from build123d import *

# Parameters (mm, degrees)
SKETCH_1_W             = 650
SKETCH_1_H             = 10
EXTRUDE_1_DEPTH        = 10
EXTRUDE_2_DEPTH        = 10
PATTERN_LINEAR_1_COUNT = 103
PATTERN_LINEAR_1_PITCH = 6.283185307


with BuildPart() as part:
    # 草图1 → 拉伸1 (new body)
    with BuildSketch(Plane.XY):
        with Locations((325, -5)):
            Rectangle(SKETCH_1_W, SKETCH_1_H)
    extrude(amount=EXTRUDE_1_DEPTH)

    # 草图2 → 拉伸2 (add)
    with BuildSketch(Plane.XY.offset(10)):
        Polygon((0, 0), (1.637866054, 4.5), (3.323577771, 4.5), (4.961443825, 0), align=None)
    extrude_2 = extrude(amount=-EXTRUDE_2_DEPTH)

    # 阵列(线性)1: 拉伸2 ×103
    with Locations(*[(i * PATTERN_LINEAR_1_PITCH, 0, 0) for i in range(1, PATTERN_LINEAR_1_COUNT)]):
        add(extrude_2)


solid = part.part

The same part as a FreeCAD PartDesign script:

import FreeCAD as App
import Part
import Sketcher

V = App.Vector
Q = App.Units.Quantity

doc = App.newDocument("Part")
params = doc.addObject("Spreadsheet::Sheet", "Params")
for row, (alias, value) in enumerate([
    ("sketch1_width", "650 mm"),
    ("sketch1_height", "10 mm"),
    ("pad1_length", "10 mm"),
    ("pad2_length", "10 mm"),
    ("linearpattern_pitch", "6.283185 mm"),
], start=1):
    params.set(f"A{row}", alias)
    params.set(f"B{row}", "=" + value)
    params.setAlias(f"B{row}", alias)

body = doc.addObject("PartDesign::Body", "Body")

# Sketch on XY plane
sketch1 = body.newObject("Sketcher::SketchObject", "Sketch")
sketch1.AttachmentSupport = (doc.getObject("XY_Plane"), [""])
sketch1.MapMode = "FlatFace"
sketch1.addGeometry([
    Part.LineSegment(V(0, 0, 0), V(0, -10, 0)),
    Part.LineSegment(V(0, -10, 0), V(650, -10, 0)),
    Part.LineSegment(V(650, -10, 0), V(650, 0, 0)),
    Part.LineSegment(V(650, 0, 0), V(0, 0, 0)),
], False)
sketch1.addConstraint([
    Sketcher.Constraint("Coincident", 0, 2, 1, 1),
    Sketcher.Constraint("Coincident", 1, 2, 2, 1),
    Sketcher.Constraint("Coincident", 2, 2, 3, 1),
    Sketcher.Constraint("Coincident", 3, 2, 0, 1),
    Sketcher.Constraint("Vertical", 0),
    Sketcher.Constraint("Horizontal", 1),
    Sketcher.Constraint("Vertical", 2),
    Sketcher.Constraint("Horizontal", 3),
    Sketcher.Constraint("Coincident", 3, 2, -1, 1),
    Sketcher.Constraint("DistanceX", 1, 1, 1, 2, Q("650 mm")),
    Sketcher.Constraint("DistanceY", 0, 2, 0, 1, Q("10 mm")),
])
sketch1.setExpression("Constraints[9]", "Params.sketch1_width")
sketch1.setExpression("Constraints[10]", "Params.sketch1_height")
pad1 = body.newObject("PartDesign::Pad", "Pad")
pad1.Profile = sketch1
pad1.setExpression("Length", "Params.pad1_length")

# Sketch on XY plane
sketch2 = body.newObject("Sketcher::SketchObject", "Sketch001")
sketch2.AttachmentSupport = (doc.getObject("XY_Plane"), [""])
sketch2.MapMode = "FlatFace"
sketch2.AttachmentOffset = App.Placement(V(0, 0, 10), App.Rotation())
sketch2.addGeometry([
    Part.LineSegment(V(1.6, 4.5, 0), V(0, 0, 0)),
    Part.LineSegment(V(0, 0, 0), V(5, 0, 0)),
    Part.LineSegment(V(5, 0, 0), V(3.3, 4.5, 0)),
    Part.LineSegment(V(3.3, 4.5, 0), V(1.6, 4.5, 0)),
], False)
sketch2.addConstraint([
    Sketcher.Constraint("Coincident", 0, 2, 1, 1),
    Sketcher.Constraint("Coincident", 1, 2, 2, 1),
    Sketcher.Constraint("Coincident", 2, 2, 3, 1),
    Sketcher.Constraint("Coincident", 3, 2, 0, 1),
    Sketcher.Constraint("Horizontal", 1),
    Sketcher.Constraint("Horizontal", 3),
    Sketcher.Constraint("Coincident", 0, 2, -1, 1),
    Sketcher.Constraint("Equal", 0, 2),
    Sketcher.Constraint("Angle", 0, Q("-110 deg")),
    Sketcher.Constraint("DistanceY", -1, 1, 2, 2, Q("4.5 mm")),
    Sketcher.Constraint("DistanceX", 3, 2, 3, 1, Q("1.685712 mm")),
])
pad2 = body.newObject("PartDesign::Pad", "Pad001")
pad2.Profile = sketch2
pad2.setExpression("Length", "Params.pad2_length")
pad2.Reversed = True
doc.recompute()

linearpattern = body.newObject("PartDesign::LinearPattern", "LinearPattern")
linearpattern.Originals = [pad2]
linearpattern.Direction = (doc.getObject("X_Axis"), [""])
linearpattern.Mode = "offset"
linearpattern.setExpression("Offset", "Params.linearpattern_pitch")
linearpattern.Occurrences = 103
body.Tip = linearpattern

doc.recompute()
